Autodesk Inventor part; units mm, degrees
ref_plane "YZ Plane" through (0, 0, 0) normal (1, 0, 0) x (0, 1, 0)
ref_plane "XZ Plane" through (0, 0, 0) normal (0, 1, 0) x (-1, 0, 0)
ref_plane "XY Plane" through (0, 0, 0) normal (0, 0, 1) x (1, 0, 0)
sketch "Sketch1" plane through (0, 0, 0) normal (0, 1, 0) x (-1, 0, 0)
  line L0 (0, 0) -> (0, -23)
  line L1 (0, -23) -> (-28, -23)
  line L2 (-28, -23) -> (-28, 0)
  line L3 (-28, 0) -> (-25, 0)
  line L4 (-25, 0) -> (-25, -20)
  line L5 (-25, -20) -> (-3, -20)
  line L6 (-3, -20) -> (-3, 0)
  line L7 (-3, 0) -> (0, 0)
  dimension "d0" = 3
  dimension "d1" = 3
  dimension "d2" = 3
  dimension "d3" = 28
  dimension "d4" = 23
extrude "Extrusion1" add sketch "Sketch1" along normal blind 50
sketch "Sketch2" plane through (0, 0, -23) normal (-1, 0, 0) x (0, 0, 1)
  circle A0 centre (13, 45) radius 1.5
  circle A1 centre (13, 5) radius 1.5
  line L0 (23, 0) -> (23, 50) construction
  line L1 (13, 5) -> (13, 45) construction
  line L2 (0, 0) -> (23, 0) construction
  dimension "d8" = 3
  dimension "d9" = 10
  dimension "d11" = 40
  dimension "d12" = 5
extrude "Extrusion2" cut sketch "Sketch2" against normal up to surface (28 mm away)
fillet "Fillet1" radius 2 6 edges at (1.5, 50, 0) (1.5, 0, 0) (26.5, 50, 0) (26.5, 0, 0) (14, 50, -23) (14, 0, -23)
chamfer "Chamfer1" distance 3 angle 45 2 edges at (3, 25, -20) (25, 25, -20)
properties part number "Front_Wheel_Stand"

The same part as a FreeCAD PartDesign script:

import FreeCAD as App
import Part
import Sketcher
from FreeCAD import Vector
Q = App.Units.Quantity


def edges_at(feature, points):
    """Names of the edges that pass closest to the given points."""
    edges = feature.Shape.Edges
    near = lambda p: min(range(len(edges)), key=lambda i: edges[i].distToShape(Part.Vertex(*p))[0])
    return sorted({f"Edge{near(p) + 1}" for p in points})

doc = App.newDocument("Part")
body = doc.addObject("PartDesign::Body", "Body")

# Sketch on XZ plane
sketch1 = body.newObject("Sketcher::SketchObject", "Sketch")
sketch1.AttachmentSupport = (doc.getObject("XZ_Plane"), [""])
sketch1.MapMode = "FlatFace"
sketch1.addGeometry(Part.LineSegment(Vector(0, -23, 0), Vector(0, 0, 0)), False)
sketch1.addGeometry(Part.LineSegment(Vector(0, 0, 0), Vector(3, 0, 0)), False)
sketch1.addGeometry(Part.LineSegment(Vector(3, 0, 0), Vector(3, -20, 0)), False)
sketch1.addGeometry(Part.LineSegment(Vector(3, -20, 0), Vector(25, -20, 0)), False)
sketch1.addGeometry(Part.LineSegment(Vector(25, -20, 0), Vector(25, 0, 0)), False)
sketch1.addGeometry(Part.LineSegment(Vector(25, 0, 0), Vector(28, 0, 0)), False)
sketch1.addGeometry(Part.LineSegment(Vector(28, 0, 0), Vector(28, -23, 0)), False)
sketch1.addGeometry(Part.LineSegment(Vector(28, -23, 0), Vector(0, -23, 0)), False)
sketch1.addConstraint(Sketcher.Constraint("Coincident", 0, 2, 1, 1))
sketch1.addConstraint(Sketcher.Constraint("Coincident", 1, 2, 2, 1))
sketch1.addConstraint(Sketcher.Constraint("Coincident", 2, 2, 3, 1))
sketch1.addConstraint(Sketcher.Constraint("Coincident", 3, 2, 4, 1))
sketch1.addConstraint(Sketcher.Constraint("Coincident", 4, 2, 5, 1))
sketch1.addConstraint(Sketcher.Constraint("Coincident", 5, 2, 6, 1))
sketch1.addConstraint(Sketcher.Constraint("Coincident", 6, 2, 7, 1))
sketch1.addConstraint(Sketcher.Constraint("Coincident", 7, 2, 0, 1))
sketch1.addConstraint(Sketcher.Constraint("Vertical", 0))
sketch1.addConstraint(Sketcher.Constraint("Horizontal", 1))
sketch1.addConstraint(Sketcher.Constraint("Vertical", 2))
sketch1.addConstraint(Sketcher.Constraint("Horizontal", 3))
sketch1.addConstraint(Sketcher.Constraint("Vertical", 4))
sketch1.addConstraint(Sketcher.Constraint("Horizontal", 5))
sketch1.addConstraint(Sketcher.Constraint("Vertical", 6))
sketch1.addConstraint(Sketcher.Constraint("Horizontal", 7))
sketch1.addConstraint(Sketcher.Constraint("Coincident", 0, 2, -1, 1))
sketch1.addConstraint(Sketcher.Constraint("PointOnObject", 4, 2, -1))
sketch1.addConstraint(Sketcher.Constraint("Equal", 1, 5))
sketch1.addConstraint(Sketcher.Constraint("DistanceX", 1, 1, 1, 2, Q("3 mm")))
sketch1.addConstraint(Sketcher.Constraint("DistanceX", 7, 2, 7, 1, Q("28 mm")))
sketch1.addConstraint(Sketcher.Constraint("DistanceY", 0, 1, 0, 2, Q("23 mm")))
sketch1.addConstraint(Sketcher.Constraint("DistanceY", 6, 2, 3, 2, Q("3 mm")))
pad1 = body.newObject("PartDesign::Pad", "Pad")
pad1.Profile = sketch1
pad1.Length = 50
pad1.Reversed = True

# Sketch on YZ plane
sketch2 = body.newObject("Sketcher::SketchObject", "Sketch001")
sketch2.AttachmentSupport = (doc.getObject("YZ_Plane"), [""])
sketch2.MapMode = "FlatFace"
sketch2.addGeometry(Part.Circle(Vector(45, -10, 0), Vector(0, 0, 1), 1.5), False)
sketch2.addGeometry(Part.Circle(Vector(5, -10, 0), Vector(0, 0, 1), 1.5), False)
sketch2.addConstraint(Sketcher.Constraint("Equal", 0, 1))
sketch2.addConstraint(Sketcher.Constraint("Horizontal", 0, 3, 1, 3))
sketch2.addConstraint(Sketcher.Constraint("Diameter", 0, Q("3 mm")))
sketch2.addConstraint(Sketcher.Constraint("DistanceY", 0, 3, -1, 1, Q("10 mm")))
sketch2.addConstraint(Sketcher.Constraint("DistanceX", -1, 1, 1, 3, Q("5 mm")))
sketch2.addConstraint(Sketcher.Constraint("DistanceX", 1, 3, 0, 3, Q("40 mm")))
pocket1 = body.newObject("PartDesign::Pocket", "Pocket")
pocket1.Profile = sketch2
pocket1.Length = 28
pocket1.Reversed = True
doc.recompute()

fillet = body.newObject("PartDesign::Fillet", "Fillet")
fillet.Base = (pocket1, edges_at(pocket1, [
    (1.5, 50, 0),
    (1.5, 0, 0),
    (26.5, 50, 0),
    (26.5, 0, 0),
    (14, 50, -23),
    (14, 0, -23),
]))
fillet.Radius = 2
doc.recompute()

chamfer = body.newObject("PartDesign::Chamfer", "Chamfer")
chamfer.Base = (fillet, edges_at(fillet, [(3, 25, -20), (25, 25, -20)]))
chamfer.Size = 3

doc.recompute()
